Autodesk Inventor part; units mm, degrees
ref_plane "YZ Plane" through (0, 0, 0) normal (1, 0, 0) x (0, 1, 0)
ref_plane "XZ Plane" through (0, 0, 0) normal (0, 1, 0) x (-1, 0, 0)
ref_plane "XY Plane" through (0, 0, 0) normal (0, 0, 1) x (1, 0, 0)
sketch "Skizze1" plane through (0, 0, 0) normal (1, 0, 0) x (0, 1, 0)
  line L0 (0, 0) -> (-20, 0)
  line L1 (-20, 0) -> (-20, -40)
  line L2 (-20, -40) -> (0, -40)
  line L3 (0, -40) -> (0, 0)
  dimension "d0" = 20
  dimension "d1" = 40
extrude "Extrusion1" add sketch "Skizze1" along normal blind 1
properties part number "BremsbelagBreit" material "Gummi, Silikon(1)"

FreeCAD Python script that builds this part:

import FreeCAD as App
import Part
import Sketcher

V = App.Vector
Q = App.Units.Quantity


def add_polygon(sketch, points):
    """Adds a closed chain of lines whose ends are joined by coincident constraints."""
    first, n = sketch.GeometryCount, len(points)
    for a, b in zip(points, points[1:] + points[:1]):
        sketch.addGeometry(Part.LineSegment(App.Vector(*a, 0), App.Vector(*b, 0)), False)
    for i in range(n):
        sketch.addConstraint(Sketcher.Constraint("Coincident", first + i, 2, first + (i + 1) % n, 1))

doc = App.newDocument("Part")
body = doc.addObject("PartDesign::Body", "Body")

sketch1 = body.newObject("Sketcher::SketchObject", "Sketch")
sketch1.AttachmentSupport = (doc.getObject("YZ_Plane"), [""])
sketch1.MapMode = "FlatFace"
add_polygon(sketch1, [(0, -40), (0, 0), (-20, 0), (-20, -40)])
sketch1.addConstraint(Sketcher.Constraint("Vertical", 0))
sketch1.addConstraint(Sketcher.Constraint("Horizontal", 1))
sketch1.addConstraint(Sketcher.Constraint("Vertical", 2))
sketch1.addConstraint(Sketcher.Constraint("Horizontal", 3))
sketch1.addConstraint(Sketcher.Constraint("Coincident", 0, 2, -1, 1))
sketch1.addConstraint(Sketcher.Constraint("DistanceX", 1, 2, 1, 1, Q("20 mm")))
sketch1.addConstraint(Sketcher.Constraint("DistanceY", 0, 1, 0, 2, Q("40 mm")))
pad1 = body.newObject("PartDesign::Pad", "Pad")
pad1.Profile = sketch1
pad1.Length = 1

doc.recompute()
